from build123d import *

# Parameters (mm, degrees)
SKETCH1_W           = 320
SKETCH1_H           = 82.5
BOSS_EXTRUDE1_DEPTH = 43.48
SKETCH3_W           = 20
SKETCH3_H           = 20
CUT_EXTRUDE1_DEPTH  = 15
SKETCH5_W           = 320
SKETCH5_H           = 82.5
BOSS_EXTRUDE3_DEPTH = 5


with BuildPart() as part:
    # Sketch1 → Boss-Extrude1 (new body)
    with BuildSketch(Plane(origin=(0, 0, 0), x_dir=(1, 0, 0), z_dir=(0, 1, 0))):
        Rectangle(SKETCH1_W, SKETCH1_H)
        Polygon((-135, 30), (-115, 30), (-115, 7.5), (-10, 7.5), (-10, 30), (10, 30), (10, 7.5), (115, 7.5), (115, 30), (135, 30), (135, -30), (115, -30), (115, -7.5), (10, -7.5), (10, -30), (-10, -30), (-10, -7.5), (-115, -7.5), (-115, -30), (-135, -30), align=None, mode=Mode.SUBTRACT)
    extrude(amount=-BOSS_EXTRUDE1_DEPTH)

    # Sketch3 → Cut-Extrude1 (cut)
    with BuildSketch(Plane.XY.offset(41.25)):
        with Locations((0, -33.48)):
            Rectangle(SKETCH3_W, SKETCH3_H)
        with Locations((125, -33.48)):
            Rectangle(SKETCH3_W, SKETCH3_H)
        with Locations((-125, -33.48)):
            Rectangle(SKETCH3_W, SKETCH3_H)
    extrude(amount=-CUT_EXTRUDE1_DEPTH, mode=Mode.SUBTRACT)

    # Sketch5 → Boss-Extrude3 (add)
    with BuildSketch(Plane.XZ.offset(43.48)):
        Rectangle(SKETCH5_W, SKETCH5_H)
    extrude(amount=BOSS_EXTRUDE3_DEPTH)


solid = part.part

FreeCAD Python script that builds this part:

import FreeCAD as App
import Part
import Sketcher
from FreeCAD import Vector

doc = App.newDocument("Part")
body = doc.addObject("PartDesign::Body", "Body")

# Sketch on XZ plane
sketch1 = doc.addObject("Sketcher::SketchObject", "Sketch")
body.addObject(sketch1)
sketch1.AttachmentSupport = (doc.XZ_Plane, [""])
sketch1.MapMode = "FlatFace"
sketch1.addGeometry([
    Part.LineSegment(Vector(-160, -41, 0), Vector(-160, 41, 0)),  # 0
    Part.LineSegment(Vector(-160, 41, 0), Vector(160, 41, 0)),  # 1
    Part.LineSegment(Vector(160, 41, 0), Vector(160, -41, 0)),  # 2
    Part.LineSegment(Vector(160, -41, 0), Vector(-160, -41, 0)),  # 3
    Part.LineSegment(Vector(-135, 30, 0), Vector(-135, -30, 0)),  # 4
    Part.LineSegment(Vector(-135, -30, 0), Vector(-115, -30, 0)),  # 5
    Part.LineSegment(Vector(-115, -30, 0), Vector(-115, -8, 0)),  # 6
    Part.LineSegment(Vector(-115, -8, 0), Vector(-10, -8, 0)),  # 7
    Part.LineSegment(Vector(-10, -8, 0), Vector(-10, -30, 0)),  # 8
    Part.LineSegment(Vector(-10, -30, 0), Vector(10, -30, 0)),  # 9
    Part.LineSegment(Vector(10, -30, 0), Vector(10, -8, 0)),  # 10
    Part.LineSegment(Vector(10, -8, 0), Vector(115, -8, 0)),  # 11
    Part.LineSegment(Vector(115, -8, 0), Vector(115, -30, 0)),  # 12
    Part.LineSegment(Vector(115, -30, 0), Vector(135, -30, 0)),  # 13
    Part.LineSegment(Vector(135, -30, 0), Vector(135, 30, 0)),  # 14
    Part.LineSegment(Vector(135, 30, 0), Vector(115, 30, 0)),  # 15
    Part.LineSegment(Vector(115, 30, 0), Vector(115, 8, 0)),  # 16
    Part.LineSegment(Vector(115, 8, 0), Vector(10, 8, 0)),  # 17
    Part.LineSegment(Vector(10, 8, 0), Vector(10, 30, 0)),  # 18
    Part.LineSegment(Vector(10, 30, 0), Vector(-10, 30, 0)),  # 19
    Part.LineSegment(Vector(-10, 30, 0), Vector(-10, 8, 0)),  # 20
    Part.LineSegment(Vector(-10, 8, 0), Vector(-115, 8, 0)),  # 21
    Part.LineSegment(Vector(-115, 8, 0), Vector(-115, 30, 0)),  # 22
    Part.LineSegment(Vector(-115, 30, 0), Vector(-135, 30, 0)),  # 23
], False)
sketch1.addConstraint([
    Sketcher.Constraint("Coincident", 0, 2, 1, 1),
    Sketcher.Constraint("Coincident", 1, 2, 2, 1),
    Sketcher.Constraint("Coincident", 2, 2, 3, 1),
    Sketcher.Constraint("Coincident", 3, 2, 0, 1),
    Sketcher.Constraint("Coincident", 4, 2, 5, 1),
    Sketcher.Constraint("Coincident", 5, 2, 6, 1),
    Sketcher.Constraint("Coincident", 6, 2, 7, 1),
    Sketcher.Constraint("Coincident", 7, 2, 8, 1),
    Sketcher.Constraint("Coincident", 8, 2, 9, 1),
    Sketcher.Constraint("Coincident", 9, 2, 10, 1),
    Sketcher.Constraint("Coincident", 10, 2, 11, 1),
    Sketcher.Constraint("Coincident", 11, 2, 12, 1),
    Sketcher.Constraint("Coincident", 12, 2, 13, 1),
    Sketcher.Constraint("Coincident", 13, 2, 14, 1),
    Sketcher.Constraint("Coincident", 14, 2, 15, 1),
    Sketcher.Constraint("Coincident", 15, 2, 16, 1),
    Sketcher.Constraint("Coincident", 16, 2, 17, 1),
    Sketcher.Constraint("Coincident", 17, 2, 18, 1),
    Sketcher.Constraint("Coincident", 18, 2, 19, 1),
    Sketcher.Constraint("Coincident", 19, 2, 20, 1),
    Sketcher.Constraint("Coincident", 20, 2, 21, 1),
    Sketcher.Constraint("Coincident", 21, 2, 22, 1),
    Sketcher.Constraint("Coincident", 22, 2, 23, 1),
    Sketcher.Constraint("Coincident", 23, 2, 4, 1),
    Sketcher.Constraint("Vertical", 0),
    Sketcher.Constraint("Horizontal", 1),
    Sketcher.Constraint("Vertical", 2),
    Sketcher.Constraint("Horizontal", 3),
    Sketcher.Constraint("Vertical", 4),
    Sketcher.Constraint("Horizontal", 5),
    Sketcher.Constraint("Vertical", 6),
    Sketcher.Constraint("Horizontal", 7),
    Sketcher.Constraint("Vertical", 8),
    Sketcher.Constraint("Horizontal", 9),
    Sketcher.Constraint("Vertical", 10),
    Sketcher.Constraint("Horizontal", 11),
    Sketcher.Constraint("Vertical", 12),
    Sketcher.Constraint("Horizontal", 13),
    Sketcher.Constraint("Vertical", 14),
    Sketcher.Constraint("Horizontal", 15),
    Sketcher.Constraint("Vertical", 16),
    Sketcher.Constraint("Horizontal", 17),
    Sketcher.Constraint("Vertical", 18),
    Sketcher.Constraint("Horizontal", 19),
    Sketcher.Constraint("Vertical", 20),
    Sketcher.Constraint("Horizontal", 21),
    Sketcher.Constraint("Vertical", 22),
    Sketcher.Constraint("Horizontal", 23),
    Sketcher.Constraint("Symmetric", 0, 2, 2, 2, -1, 1),
    Sketcher.Constraint("Symmetric", 4, 2, 14, 2, -1, 1),
    Sketcher.Constraint("Symmetric", 6, 2, 16, 2, -1, 1),
    Sketcher.Constraint("Symmetric", 8, 2, 18, 2, -1, 1),
    Sketcher.Constraint("Symmetric", 10, 2, 20, 2, -1, 1),
    Sketcher.Constraint("Symmetric", 12, 2, 22, 2, -1, 1),
    Sketcher.Constraint("Symmetric", 7, 2, 10, 2, -2),
    Sketcher.Constraint("Symmetric", 5, 2, 12, 2, -2),
    Sketcher.Constraint("Horizontal", 5, 2, 8, 2),
    Sketcher.Constraint("Equal", 5, 9),
    Sketcher.Constraint("DistanceX", 1, 1, 1, 2, 320.0),
    Sketcher.Constraint("DistanceX", 5, 1, 5, 2, 20.0),
    Sketcher.Constraint("DistanceX", 7, 1, 7, 2, 105.0),
    Sketcher.Constraint("DistanceY", 4, 2, 4, 1, 60.0),
    Sketcher.Constraint("DistanceY", 0, 1, 0, 2, 82.5),
    Sketcher.Constraint("DistanceY", 6, 1, 6, 2, 22.5),
])
pad1 = doc.addObject("PartDesign::Pad", "Pad")
body.addObject(pad1)
pad1.Profile = sketch1
pad1.Length = 43.48

# Sketch on XY plane
sketch2 = doc.addObject("Sketcher::SketchObject", "Sketch001")
body.addObject(sketch2)
sketch2.AttachmentSupport = (doc.XY_Plane, [""])
sketch2.MapMode = "FlatFace"
sketch2.AttachmentOffset = App.Placement(Vector(0, 0, 41.25), App.Rotation())
sketch2.addGeometry([
    Part.LineSegment(Vector(-10, -23, 0), Vector(-10, -43, 0)),  # 0
    Part.LineSegment(Vector(-10, -43, 0), Vector(10, -43, 0)),  # 1
    Part.LineSegment(Vector(10, -43, 0), Vector(10, -23, 0)),  # 2
    Part.LineSegment(Vector(10, -23, 0), Vector(-10, -23, 0)),  # 3
    Part.LineSegment(Vector(115, -23, 0), Vector(115, -43, 0)),  # 4
    Part.LineSegment(Vector(115, -43, 0), Vector(135, -43, 0)),  # 5
    Part.LineSegment(Vector(135, -43, 0), Vector(135, -23, 0)),  # 6
    Part.LineSegment(Vector(135, -23, 0), Vector(115, -23, 0)),  # 7
    Part.LineSegment(Vector(-135, -23, 0), Vector(-135, -43, 0)),  # 8
    Part.LineSegment(Vector(-135, -43, 0), Vector(-115, -43, 0)),  # 9
    Part.LineSegment(Vector(-115, -43, 0), Vector(-115, -23, 0)),  # 10
    Part.LineSegment(Vector(-115, -23, 0), Vector(-135, -23, 0)),  # 11
], False)
sketch2.addConstraint([
    Sketcher.Constraint("Coincident", 0, 2, 1, 1),
    Sketcher.Constraint("Coincident", 1, 2, 2, 1),
    Sketcher.Constraint("Coincident", 2, 2, 3, 1),
    Sketcher.Constraint("Coincident", 3, 2, 0, 1),
    Sketcher.Constraint("Coincident", 4, 2, 5, 1),
    Sketcher.Constraint("Coincident", 5, 2, 6, 1),
    Sketcher.Constraint("Coincident", 6, 2, 7, 1),
    Sketcher.Constraint("Coincident", 7, 2, 4, 1),
    Sketcher.Constraint("Coincident", 8, 2, 9, 1),
    Sketcher.Constraint("Coincident", 9, 2, 10, 1),
    Sketcher.Constraint("Coincident", 10, 2, 11, 1),
    Sketcher.Constraint("Coincident", 11, 2, 8, 1),
    Sketcher.Constraint("Vertical", 0),
    Sketcher.Constraint("Horizontal", 1),
    Sketcher.Constraint("Vertical", 2),
    Sketcher.Constraint("Horizontal", 3),
    Sketcher.Constraint("Vertical", 4),
    Sketcher.Constraint("Horizontal", 5),
    Sketcher.Constraint("Vertical", 6),
    Sketcher.Constraint("Horizontal", 7),
    Sketcher.Constraint("Vertical", 8),
    Sketcher.Constraint("Horizontal", 9),
    Sketcher.Constraint("Vertical", 10),
    Sketcher.Constraint("Horizontal", 11),
    Sketcher.Constraint("Symmetric", 5, 2, 8, 2, -2),
    Sketcher.Constraint("Symmetric", 7, 2, 10, 2, -2),
    Sketcher.Constraint("Horizontal", 1, 2, 4, 2),
    Sketcher.Constraint("Horizontal", 3, 2, 6, 2),
    Sketcher.Constraint("Equal", 3, 5),
    Sketcher.Constraint("Equal", 11, 0),
    Sketcher.Constraint("DistanceX", 1, 1, 1, 2, 20.0),
    Sketcher.Constraint("DistanceX", 0, 2, -1, 1, 10.0),
    Sketcher.Constraint("DistanceX", -1, 1, 4, 2, 115.0),
    Sketcher.Constraint("DistanceY", 0, 2, -1, 1, 43.48),
])
pocket1 = doc.addObject("PartDesign::Pocket", "Pocket")
body.addObject(pocket1)
pocket1.Profile = sketch2
pocket1.Length = 15

# Sketch on XZ plane
sketch3 = doc.addObject("Sketcher::SketchObject", "Sketch002")
body.addObject(sketch3)
sketch3.AttachmentSupport = (doc.XZ_Plane, [""])
sketch3.MapMode = "FlatFace"
sketch3.AttachmentOffset = App.Placement(Vector(0, 0, 43.48), App.Rotation())
sketch3.addGeometry([
    Part.LineSegment(Vector(-160, 41, 0), Vector(-160, -41, 0)),
    Part.LineSegment(Vector(-160, -41, 0), Vector(160, -41, 0)),
    Part.LineSegment(Vector(160, -41, 0), Vector(160, 41, 0)),
    Part.LineSegment(Vector(160, 41, 0), Vector(-160, 41, 0)),
], False)
sketch3.addConstraint([
    Sketcher.Constraint("Coincident", 0, 2, 1, 1),
    Sketcher.Constraint("Coincident", 1, 2, 2, 1),
    Sketcher.Constraint("Coincident", 2, 2, 3, 1),
    Sketcher.Constraint("Coincident", 3, 2, 0, 1),
    Sketcher.Constraint("Vertical", 0),
    Sketcher.Constraint("Horizontal", 1),
    Sketcher.Constraint("Vertical", 2),
    Sketcher.Constraint("Horizontal", 3),
    Sketcher.Constraint("Symmetric", 0, 2, 2, 2, -1, 1),
    Sketcher.Constraint("DistanceX", 1, 1, 1, 2, 320.0),
    Sketcher.Constraint("DistanceY", 0, 2, 0, 1, 82.5),
])
pad2 = doc.addObject("PartDesign::Pad", "Pad001")
body.addObject(pad2)
pad2.Profile = sketch3
pad2.Length = 5

doc.recompute()
